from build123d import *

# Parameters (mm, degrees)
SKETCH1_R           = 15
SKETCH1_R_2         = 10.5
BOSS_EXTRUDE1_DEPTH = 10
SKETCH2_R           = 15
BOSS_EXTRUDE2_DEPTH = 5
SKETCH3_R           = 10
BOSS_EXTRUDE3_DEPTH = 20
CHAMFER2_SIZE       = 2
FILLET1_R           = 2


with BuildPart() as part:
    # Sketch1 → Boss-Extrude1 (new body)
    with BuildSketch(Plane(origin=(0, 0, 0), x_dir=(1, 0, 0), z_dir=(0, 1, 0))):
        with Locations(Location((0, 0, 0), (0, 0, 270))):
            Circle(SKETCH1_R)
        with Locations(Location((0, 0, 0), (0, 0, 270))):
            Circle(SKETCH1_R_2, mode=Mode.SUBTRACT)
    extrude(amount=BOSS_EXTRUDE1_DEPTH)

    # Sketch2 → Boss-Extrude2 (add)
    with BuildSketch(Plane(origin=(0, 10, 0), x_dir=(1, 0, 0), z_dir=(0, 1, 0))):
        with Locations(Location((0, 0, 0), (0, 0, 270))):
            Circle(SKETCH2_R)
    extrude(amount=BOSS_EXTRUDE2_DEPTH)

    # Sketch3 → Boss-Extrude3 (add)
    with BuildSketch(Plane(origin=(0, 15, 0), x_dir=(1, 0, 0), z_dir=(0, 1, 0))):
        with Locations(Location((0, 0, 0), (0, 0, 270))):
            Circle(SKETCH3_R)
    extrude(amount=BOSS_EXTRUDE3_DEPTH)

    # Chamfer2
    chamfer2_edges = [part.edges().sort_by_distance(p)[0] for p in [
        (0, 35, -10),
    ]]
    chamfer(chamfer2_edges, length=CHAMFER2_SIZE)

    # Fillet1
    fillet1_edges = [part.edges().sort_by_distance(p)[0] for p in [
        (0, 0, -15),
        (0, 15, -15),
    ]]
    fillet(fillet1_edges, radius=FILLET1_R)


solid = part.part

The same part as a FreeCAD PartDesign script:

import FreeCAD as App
import Part
import Sketcher

V = App.Vector


def edges_at(feature, points):
    """Names of the edges that pass closest to the given points."""
    edges = feature.Shape.Edges
    near = lambda p: min(range(len(edges)), key=lambda i: edges[i].distToShape(Part.Vertex(*p))[0])
    return sorted({f"Edge{near(p) + 1}" for p in points})

doc = App.newDocument("Part")
body = doc.addObject("PartDesign::Body", "Body")

# Sketch on XZ plane
sketch1 = body.newObject("Sketcher::SketchObject", "Sketch")
sketch1.AttachmentSupport = (doc.getObject("XZ_Plane"), [""])
sketch1.MapMode = "FlatFace"
sketch1.addGeometry([
    Part.Circle(V(0, 0, 0), V(0, 0, 1), 15),
    Part.Circle(V(0, 0, 0), V(0, 0, 1), 10),
], False)
sketch1.addConstraint([
    Sketcher.Constraint("Coincident", 0, 3, -1, 1),
    Sketcher.Constraint("Coincident", 1, 3, -1, 1),
    Sketcher.Constraint("Diameter", 0, 30.0),
    Sketcher.Constraint("Diameter", 1, 21.0),
])
pad1 = body.newObject("PartDesign::Pad", "Pad")
pad1.Profile = sketch1
pad1.Length = 10
pad1.Reversed = True

# Sketch on XZ plane
sketch2 = body.newObject("Sketcher::SketchObject", "Sketch001")
sketch2.AttachmentSupport = (doc.getObject("XZ_Plane"), [""])
sketch2.MapMode = "FlatFace"
sketch2.AttachmentOffset = App.Placement(V(0, 0, -10), App.Rotation())
sketch2.addGeometry(Part.Circle(V(0, 0, 0), V(0, 0, 1), 15), False)
sketch2.addConstraint([
    Sketcher.Constraint("Coincident", 0, 3, -1, 1),
    Sketcher.Constraint("Diameter", 0, 30.0),
])
pad2 = body.newObject("PartDesign::Pad", "Pad001")
pad2.Profile = sketch2
pad2.Length = 5
pad2.Reversed = True

# Sketch on XZ plane
sketch3 = body.newObject("Sketcher::SketchObject", "Sketch002")
sketch3.AttachmentSupport = (doc.getObject("XZ_Plane"), [""])
sketch3.MapMode = "FlatFace"
sketch3.AttachmentOffset = App.Placement(V(0, 0, -15), App.Rotation())
sketch3.addGeometry(Part.Circle(V(0, 0, 0), V(0, 0, 1), 10), False)
sketch3.addConstraint([
    Sketcher.Constraint("Coincident", 0, 3, -1, 1),
    Sketcher.Constraint("Diameter", 0, 20.0),
])
pad3 = body.newObject("PartDesign::Pad", "Pad002")
pad3.Profile = sketch3
pad3.Length = 20
pad3.Reversed = True
doc.recompute()

chamfer = body.newObject("PartDesign::Chamfer", "Chamfer")
chamfer.Base = (pad3, edges_at(pad3, [(0, 35, -10)]))
chamfer.Size = 2
doc.recompute()

fillet = body.newObject("PartDesign::Fillet", "Fillet")
fillet.Base = (chamfer, edges_at(chamfer, [(0, 0, -15), (0, 15, -15)]))
fillet.Radius = 2

doc.recompute()
